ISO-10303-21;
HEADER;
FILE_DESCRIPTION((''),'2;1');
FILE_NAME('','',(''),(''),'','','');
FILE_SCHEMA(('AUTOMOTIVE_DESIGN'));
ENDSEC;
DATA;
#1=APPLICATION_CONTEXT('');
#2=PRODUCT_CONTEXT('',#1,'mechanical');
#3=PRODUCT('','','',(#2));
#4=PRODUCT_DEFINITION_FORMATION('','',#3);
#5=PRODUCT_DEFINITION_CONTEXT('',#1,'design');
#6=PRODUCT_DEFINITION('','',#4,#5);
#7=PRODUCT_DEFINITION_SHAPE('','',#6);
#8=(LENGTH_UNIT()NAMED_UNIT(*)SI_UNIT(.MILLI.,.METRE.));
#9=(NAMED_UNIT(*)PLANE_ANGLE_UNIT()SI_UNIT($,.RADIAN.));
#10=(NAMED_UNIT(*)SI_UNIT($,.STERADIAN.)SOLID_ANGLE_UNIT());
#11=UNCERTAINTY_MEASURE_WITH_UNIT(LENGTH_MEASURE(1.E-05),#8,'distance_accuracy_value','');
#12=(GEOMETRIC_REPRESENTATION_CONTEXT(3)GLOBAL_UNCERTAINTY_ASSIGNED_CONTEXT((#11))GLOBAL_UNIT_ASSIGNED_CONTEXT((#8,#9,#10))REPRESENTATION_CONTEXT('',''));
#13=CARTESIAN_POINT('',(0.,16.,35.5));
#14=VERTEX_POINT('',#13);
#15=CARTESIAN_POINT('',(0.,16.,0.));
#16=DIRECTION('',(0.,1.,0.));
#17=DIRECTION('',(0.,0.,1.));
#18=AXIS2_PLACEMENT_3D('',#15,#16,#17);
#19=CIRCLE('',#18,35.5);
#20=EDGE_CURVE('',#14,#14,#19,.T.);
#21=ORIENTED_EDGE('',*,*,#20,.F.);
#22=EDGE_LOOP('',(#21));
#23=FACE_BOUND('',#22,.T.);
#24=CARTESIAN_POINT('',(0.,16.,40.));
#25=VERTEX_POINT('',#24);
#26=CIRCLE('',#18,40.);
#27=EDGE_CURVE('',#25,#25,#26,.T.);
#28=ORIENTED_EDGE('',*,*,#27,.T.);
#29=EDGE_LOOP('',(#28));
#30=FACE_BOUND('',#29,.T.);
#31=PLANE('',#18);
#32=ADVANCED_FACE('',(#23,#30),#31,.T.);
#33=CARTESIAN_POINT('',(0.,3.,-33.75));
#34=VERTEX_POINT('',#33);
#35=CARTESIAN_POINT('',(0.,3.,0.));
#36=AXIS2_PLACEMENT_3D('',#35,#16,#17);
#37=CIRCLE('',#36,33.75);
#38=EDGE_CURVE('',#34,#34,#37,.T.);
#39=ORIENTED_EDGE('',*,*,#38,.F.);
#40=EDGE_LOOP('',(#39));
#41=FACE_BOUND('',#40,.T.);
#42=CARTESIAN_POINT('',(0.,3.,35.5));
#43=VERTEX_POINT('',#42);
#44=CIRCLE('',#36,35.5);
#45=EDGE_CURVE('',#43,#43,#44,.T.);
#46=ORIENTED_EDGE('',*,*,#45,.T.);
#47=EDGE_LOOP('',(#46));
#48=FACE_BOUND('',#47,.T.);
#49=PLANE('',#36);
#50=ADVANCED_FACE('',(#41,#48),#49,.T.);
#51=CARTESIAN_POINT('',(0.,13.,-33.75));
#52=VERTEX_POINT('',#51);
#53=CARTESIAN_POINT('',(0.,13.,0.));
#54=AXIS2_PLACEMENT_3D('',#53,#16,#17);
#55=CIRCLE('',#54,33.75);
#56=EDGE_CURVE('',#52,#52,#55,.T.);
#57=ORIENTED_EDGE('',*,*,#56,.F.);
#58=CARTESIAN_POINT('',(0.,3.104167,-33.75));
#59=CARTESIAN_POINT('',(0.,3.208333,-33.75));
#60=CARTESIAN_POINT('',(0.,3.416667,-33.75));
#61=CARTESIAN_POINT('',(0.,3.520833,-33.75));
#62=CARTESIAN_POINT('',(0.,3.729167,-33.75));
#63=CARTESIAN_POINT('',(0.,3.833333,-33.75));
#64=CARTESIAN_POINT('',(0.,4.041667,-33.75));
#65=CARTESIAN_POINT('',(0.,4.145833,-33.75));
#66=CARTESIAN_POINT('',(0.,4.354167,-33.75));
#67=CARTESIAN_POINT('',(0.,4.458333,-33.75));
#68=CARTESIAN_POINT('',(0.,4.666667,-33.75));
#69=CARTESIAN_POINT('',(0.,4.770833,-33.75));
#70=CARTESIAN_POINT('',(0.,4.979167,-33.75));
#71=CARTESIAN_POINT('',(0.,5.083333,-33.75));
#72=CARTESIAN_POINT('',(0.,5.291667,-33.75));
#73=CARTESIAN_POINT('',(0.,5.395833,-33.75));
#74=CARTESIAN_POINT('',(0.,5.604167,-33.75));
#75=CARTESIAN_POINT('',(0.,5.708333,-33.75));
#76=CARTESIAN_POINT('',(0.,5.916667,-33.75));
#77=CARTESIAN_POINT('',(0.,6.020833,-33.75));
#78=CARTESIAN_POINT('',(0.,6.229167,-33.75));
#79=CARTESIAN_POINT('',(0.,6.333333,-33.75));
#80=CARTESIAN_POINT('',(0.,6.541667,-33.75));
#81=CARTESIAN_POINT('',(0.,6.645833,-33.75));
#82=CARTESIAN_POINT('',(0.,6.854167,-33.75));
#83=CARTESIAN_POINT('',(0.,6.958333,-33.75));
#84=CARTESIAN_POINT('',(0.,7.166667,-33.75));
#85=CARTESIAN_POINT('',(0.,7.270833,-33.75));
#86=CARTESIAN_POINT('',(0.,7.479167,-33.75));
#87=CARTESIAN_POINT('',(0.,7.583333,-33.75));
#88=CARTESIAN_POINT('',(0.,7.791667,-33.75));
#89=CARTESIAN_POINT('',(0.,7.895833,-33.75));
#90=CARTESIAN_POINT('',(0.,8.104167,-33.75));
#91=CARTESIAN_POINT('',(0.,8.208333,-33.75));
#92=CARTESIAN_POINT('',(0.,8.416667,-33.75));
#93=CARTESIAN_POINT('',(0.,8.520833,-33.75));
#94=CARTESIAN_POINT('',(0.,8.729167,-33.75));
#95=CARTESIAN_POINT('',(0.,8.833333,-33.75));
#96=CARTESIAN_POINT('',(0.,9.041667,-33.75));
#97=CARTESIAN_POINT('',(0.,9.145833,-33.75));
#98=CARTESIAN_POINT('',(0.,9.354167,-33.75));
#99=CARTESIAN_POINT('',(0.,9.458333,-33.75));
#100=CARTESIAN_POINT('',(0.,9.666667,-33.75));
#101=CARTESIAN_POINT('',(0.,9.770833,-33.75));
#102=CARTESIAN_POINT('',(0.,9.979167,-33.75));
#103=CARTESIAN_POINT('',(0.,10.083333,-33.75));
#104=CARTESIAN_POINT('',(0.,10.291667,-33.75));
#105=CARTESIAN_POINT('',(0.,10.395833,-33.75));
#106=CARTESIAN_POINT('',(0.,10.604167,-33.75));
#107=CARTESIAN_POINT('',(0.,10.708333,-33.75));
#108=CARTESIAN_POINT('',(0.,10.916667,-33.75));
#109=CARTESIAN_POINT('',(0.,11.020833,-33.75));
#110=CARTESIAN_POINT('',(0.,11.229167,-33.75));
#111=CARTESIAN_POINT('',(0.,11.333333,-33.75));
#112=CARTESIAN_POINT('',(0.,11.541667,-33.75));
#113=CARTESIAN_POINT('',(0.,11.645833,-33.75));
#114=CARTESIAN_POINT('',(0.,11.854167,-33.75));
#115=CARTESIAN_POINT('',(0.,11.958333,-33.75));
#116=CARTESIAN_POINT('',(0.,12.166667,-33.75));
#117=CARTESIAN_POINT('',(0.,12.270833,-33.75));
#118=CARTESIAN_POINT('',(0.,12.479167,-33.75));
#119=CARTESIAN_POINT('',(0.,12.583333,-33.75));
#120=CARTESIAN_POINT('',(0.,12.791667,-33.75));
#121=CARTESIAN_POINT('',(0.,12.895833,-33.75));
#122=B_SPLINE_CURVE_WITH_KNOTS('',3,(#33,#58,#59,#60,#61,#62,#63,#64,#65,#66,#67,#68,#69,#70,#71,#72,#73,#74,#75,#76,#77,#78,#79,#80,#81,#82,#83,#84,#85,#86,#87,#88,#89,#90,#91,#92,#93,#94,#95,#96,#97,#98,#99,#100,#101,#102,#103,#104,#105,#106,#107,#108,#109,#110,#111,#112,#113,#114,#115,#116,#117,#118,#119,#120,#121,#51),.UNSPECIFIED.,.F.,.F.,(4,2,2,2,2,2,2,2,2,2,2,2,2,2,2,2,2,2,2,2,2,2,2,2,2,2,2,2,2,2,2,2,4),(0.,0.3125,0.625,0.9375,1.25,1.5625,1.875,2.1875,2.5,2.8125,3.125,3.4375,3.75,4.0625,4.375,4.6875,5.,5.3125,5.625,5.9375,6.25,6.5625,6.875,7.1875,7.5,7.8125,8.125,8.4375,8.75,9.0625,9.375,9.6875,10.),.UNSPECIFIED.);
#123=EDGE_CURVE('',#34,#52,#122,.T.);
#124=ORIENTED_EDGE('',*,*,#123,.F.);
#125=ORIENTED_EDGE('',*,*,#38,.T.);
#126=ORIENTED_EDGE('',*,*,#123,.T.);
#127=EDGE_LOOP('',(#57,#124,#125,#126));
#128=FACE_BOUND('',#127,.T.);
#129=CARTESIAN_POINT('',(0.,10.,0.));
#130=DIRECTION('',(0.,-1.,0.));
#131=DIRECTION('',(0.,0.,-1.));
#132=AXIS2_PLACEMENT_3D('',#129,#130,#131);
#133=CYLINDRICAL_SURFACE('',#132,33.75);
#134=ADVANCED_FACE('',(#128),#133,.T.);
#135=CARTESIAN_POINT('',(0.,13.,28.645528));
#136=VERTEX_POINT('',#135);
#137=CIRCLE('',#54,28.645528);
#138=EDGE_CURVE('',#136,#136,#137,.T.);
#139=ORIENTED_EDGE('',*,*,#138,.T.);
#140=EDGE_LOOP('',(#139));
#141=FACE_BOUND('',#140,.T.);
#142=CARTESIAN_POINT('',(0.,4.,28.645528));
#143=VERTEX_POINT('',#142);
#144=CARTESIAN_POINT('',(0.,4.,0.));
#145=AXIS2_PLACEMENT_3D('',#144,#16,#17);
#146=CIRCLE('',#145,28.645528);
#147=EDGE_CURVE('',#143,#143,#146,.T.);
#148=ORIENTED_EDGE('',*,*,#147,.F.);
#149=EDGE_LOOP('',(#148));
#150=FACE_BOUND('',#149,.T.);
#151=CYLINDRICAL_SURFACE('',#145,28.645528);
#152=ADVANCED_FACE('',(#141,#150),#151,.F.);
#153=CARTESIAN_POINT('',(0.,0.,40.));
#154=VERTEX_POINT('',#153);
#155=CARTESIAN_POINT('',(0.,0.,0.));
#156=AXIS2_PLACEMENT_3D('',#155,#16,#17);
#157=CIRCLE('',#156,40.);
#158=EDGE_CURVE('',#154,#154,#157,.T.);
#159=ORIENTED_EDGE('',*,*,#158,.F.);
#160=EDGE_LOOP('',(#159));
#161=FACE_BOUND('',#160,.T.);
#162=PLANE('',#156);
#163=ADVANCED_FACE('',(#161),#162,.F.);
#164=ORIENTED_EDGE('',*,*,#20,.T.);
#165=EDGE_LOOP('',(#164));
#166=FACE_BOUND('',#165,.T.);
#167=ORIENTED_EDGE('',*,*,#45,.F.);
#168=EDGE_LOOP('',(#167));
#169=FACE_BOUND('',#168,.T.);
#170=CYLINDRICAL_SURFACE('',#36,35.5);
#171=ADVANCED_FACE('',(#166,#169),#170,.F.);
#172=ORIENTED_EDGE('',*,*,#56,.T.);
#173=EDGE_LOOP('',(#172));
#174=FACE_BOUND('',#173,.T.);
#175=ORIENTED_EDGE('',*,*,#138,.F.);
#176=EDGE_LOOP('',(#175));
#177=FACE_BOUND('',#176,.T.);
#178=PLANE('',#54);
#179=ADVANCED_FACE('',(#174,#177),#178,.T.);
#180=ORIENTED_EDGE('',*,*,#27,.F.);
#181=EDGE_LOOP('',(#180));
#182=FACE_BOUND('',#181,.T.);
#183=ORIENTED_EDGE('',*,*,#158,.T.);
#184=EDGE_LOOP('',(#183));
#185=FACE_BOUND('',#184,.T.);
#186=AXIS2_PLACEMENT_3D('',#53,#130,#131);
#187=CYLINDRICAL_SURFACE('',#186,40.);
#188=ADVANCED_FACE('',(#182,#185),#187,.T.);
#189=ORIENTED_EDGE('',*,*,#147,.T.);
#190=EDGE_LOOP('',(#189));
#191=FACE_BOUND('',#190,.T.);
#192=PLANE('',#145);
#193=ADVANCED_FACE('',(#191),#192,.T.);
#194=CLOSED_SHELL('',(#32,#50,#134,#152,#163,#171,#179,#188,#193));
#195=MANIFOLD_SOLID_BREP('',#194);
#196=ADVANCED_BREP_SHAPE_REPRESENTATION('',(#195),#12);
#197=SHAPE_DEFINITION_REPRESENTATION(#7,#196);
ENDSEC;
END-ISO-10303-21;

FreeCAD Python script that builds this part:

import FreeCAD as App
import Part
import Sketcher

doc = App.newDocument("Part")
body = doc.addObject("PartDesign::Body", "Body")

# Sketch on XZ plane
sketch1 = body.newObject("Sketcher::SketchObject", "Sketch")
sketch1.AttachmentSupport = (doc.getObject("XZ_Plane"), [""])
sketch1.MapMode = "FlatFace"
sketch1.addGeometry(Part.Circle(App.Vector(0, 0, 0), App.Vector(0, 0, 1), 40), False)
sketch1.addConstraint(Sketcher.Constraint("Coincident", 0, 3, -1, 1))
sketch1.addConstraint(Sketcher.Constraint("Diameter", 0, 80.0))
pad1 = body.newObject("PartDesign::Pad", "Pad")
pad1.Profile = sketch1
pad1.Length = 13
pad1.Reversed = True

# Sketch on XZ plane
sketch2 = body.newObject("Sketcher::SketchObject", "Sketch001")
sketch2.AttachmentSupport = (doc.getObject("XZ_Plane"), [""])
sketch2.MapMode = "FlatFace"
sketch2.AttachmentOffset = App.Placement(App.Vector(0, 0, -13), App.Rotation())
sketch2.addGeometry(Part.Circle(App.Vector(0, 0, 0), App.Vector(0, 0, 1), 35), False)
sketch2.addConstraint(Sketcher.Constraint("Coincident", 0, 3, -1, 1))
sketch2.addConstraint(Sketcher.Constraint("Diameter", 0, 70.0))
pocket1 = body.newObject("PartDesign::Pocket", "Pocket")
pocket1.Profile = sketch2
pocket1.Length = 10
pocket1.Reversed = True

# Sketch on XZ plane
sketch3 = body.newObject("Sketcher::SketchObject", "Sketch002")
sketch3.AttachmentSupport = (doc.getObject("XZ_Plane"), [""])
sketch3.MapMode = "FlatFace"
sketch3.AttachmentOffset = App.Placement(App.Vector(0, 0, -3), App.Rotation())
sketch3.addGeometry(Part.Circle(App.Vector(0, 0, 0), App.Vector(0, 0, 1), 33), False)
sketch3.addConstraint(Sketcher.Constraint("Coincident", 0, 3, -1, 1))
sketch3.addConstraint(Sketcher.Constraint("Diameter", 0, 66.0))
pad2 = body.newObject("PartDesign::Pad", "Pad001")
pad2.Profile = sketch3
pad2.Length = 4
pad2.Reversed = True

# Sketch on XZ plane
sketch4 = body.newObject("Sketcher::SketchObject", "Sketch003")
sketch4.AttachmentSupport = (doc.getObject("XZ_Plane"), [""])
sketch4.MapMode = "FlatFace"
sketch4.AttachmentOffset = App.Placement(App.Vector(0, 0, -13), App.Rotation())
sketch4.addGeometry(Part.Circle(App.Vector(0, 0, 0), App.Vector(0, 0, 1), 40), False)
sketch4.addGeometry(Part.Circle(App.Vector(0, 0, 0), App.Vector(0, 0, 1), 35), False)
sketch4.addConstraint(Sketcher.Constraint("Coincident", 0, 3, -1, 1))
sketch4.addConstraint(Sketcher.Constraint("Coincident", 1, 3, -1, 1))
sketch4.addConstraint(Sketcher.Constraint("Diameter", 0, 80.0))
sketch4.addConstraint(Sketcher.Constraint("Diameter", 1, 70.0))
pad3 = body.newObject("PartDesign::Pad", "Pad002")
pad3.Profile = sketch4
pad3.Length = 3
pad3.Reversed = True

# Sketch on XZ plane
sketch5 = body.newObject("Sketcher::SketchObject", "Sketch004")
sketch5.AttachmentSupport = (doc.getObject("XZ_Plane"), [""])
sketch5.MapMode = "FlatFace"
sketch5.AttachmentOffset = App.Placement(App.Vector(0, 0, -16), App.Rotation())
sketch5.addGeometry(Part.Circle(App.Vector(0, 0, 0), App.Vector(0, 0, 1), 35.5), False)
sketch5.addConstraint(Sketcher.Constraint("Coincident", 0, 3, -1, 1))
sketch5.addConstraint(Sketcher.Constraint("Diameter", 0, 71.0))
pocket2 = body.newObject("PartDesign::Pocket", "Pocket001")
pocket2.Profile = sketch5
pocket2.Length = 13
pocket2.Reversed = True

# Sketch on XZ plane
sketch6 = body.newObject("Sketcher::SketchObject", "Sketch005")
sketch6.AttachmentSupport = (doc.getObject("XZ_Plane"), [""])
sketch6.MapMode = "FlatFace"
sketch6.AttachmentOffset = App.Placement(App.Vector(0, 0, -3), App.Rotation())
sketch6.addGeometry(Part.Circle(App.Vector(0, 0, 0), App.Vector(0, 0, 1), 33.75), False)
sketch6.addConstraint(Sketcher.Constraint("Coincident", 0, 3, -1, 1))
sketch6.addConstraint(Sketcher.Constraint("Diameter", 0, 67.5))
pad4 = body.newObject("PartDesign::Pad", "Pad003")
pad4.Profile = sketch6
pad4.Length = 7
pad4.Reversed = True

# Sketch on XZ plane
sketch7 = body.newObject("Sketcher::SketchObject", "Sketch006")
sketch7.AttachmentSupport = (doc.getObject("XZ_Plane"), [""])
sketch7.MapMode = "FlatFace"
sketch7.AttachmentOffset = App.Placement(App.Vector(0, 0, -10), App.Rotation())
sketch7.addGeometry(Part.Circle(App.Vector(0, 0, 0), App.Vector(0, 0, 1), 28.645528), False)
sketch7.addConstraint(Sketcher.Constraint("Coincident", 0, 3, -1, 1))
sketch7.addConstraint(Sketcher.Constraint("Diameter", 0, 57.291057))
pocket3 = body.newObject("PartDesign::Pocket", "Pocket002")
pocket3.Profile = sketch7
pocket3.Length = 6
pocket3.Reversed = True

# Sketch on XZ plane
sketch8 = body.newObject("Sketcher::SketchObject", "Sketch007")
sketch8.AttachmentSupport = (doc.getObject("XZ_Plane"), [""])
sketch8.MapMode = "FlatFace"
sketch8.AttachmentOffset = App.Placement(App.Vector(0, 0, -10), App.Rotation())
sketch8.addGeometry(Part.Circle(App.Vector(0, 0, 0), App.Vector(0, 0, 1), 33.75), False)
sketch8.addGeometry(Part.Circle(App.Vector(0, 0, 0), App.Vector(0, 0, 1), 28.645528), False)
sketch8.addConstraint(Sketcher.Constraint("Coincident", 0, 3, -1, 1))
sketch8.addConstraint(Sketcher.Constraint("Coincident", 1, 3, -1, 1))
sketch8.addConstraint(Sketcher.Constraint("Diameter", 0, 67.5))
sketch8.addConstraint(Sketcher.Constraint("Diameter", 1, 57.291057))
pad5 = body.newObject("PartDesign::Pad", "Pad004")
pad5.Profile = sketch8
pad5.Length = 3
pad5.Reversed = True

doc.recompute()
